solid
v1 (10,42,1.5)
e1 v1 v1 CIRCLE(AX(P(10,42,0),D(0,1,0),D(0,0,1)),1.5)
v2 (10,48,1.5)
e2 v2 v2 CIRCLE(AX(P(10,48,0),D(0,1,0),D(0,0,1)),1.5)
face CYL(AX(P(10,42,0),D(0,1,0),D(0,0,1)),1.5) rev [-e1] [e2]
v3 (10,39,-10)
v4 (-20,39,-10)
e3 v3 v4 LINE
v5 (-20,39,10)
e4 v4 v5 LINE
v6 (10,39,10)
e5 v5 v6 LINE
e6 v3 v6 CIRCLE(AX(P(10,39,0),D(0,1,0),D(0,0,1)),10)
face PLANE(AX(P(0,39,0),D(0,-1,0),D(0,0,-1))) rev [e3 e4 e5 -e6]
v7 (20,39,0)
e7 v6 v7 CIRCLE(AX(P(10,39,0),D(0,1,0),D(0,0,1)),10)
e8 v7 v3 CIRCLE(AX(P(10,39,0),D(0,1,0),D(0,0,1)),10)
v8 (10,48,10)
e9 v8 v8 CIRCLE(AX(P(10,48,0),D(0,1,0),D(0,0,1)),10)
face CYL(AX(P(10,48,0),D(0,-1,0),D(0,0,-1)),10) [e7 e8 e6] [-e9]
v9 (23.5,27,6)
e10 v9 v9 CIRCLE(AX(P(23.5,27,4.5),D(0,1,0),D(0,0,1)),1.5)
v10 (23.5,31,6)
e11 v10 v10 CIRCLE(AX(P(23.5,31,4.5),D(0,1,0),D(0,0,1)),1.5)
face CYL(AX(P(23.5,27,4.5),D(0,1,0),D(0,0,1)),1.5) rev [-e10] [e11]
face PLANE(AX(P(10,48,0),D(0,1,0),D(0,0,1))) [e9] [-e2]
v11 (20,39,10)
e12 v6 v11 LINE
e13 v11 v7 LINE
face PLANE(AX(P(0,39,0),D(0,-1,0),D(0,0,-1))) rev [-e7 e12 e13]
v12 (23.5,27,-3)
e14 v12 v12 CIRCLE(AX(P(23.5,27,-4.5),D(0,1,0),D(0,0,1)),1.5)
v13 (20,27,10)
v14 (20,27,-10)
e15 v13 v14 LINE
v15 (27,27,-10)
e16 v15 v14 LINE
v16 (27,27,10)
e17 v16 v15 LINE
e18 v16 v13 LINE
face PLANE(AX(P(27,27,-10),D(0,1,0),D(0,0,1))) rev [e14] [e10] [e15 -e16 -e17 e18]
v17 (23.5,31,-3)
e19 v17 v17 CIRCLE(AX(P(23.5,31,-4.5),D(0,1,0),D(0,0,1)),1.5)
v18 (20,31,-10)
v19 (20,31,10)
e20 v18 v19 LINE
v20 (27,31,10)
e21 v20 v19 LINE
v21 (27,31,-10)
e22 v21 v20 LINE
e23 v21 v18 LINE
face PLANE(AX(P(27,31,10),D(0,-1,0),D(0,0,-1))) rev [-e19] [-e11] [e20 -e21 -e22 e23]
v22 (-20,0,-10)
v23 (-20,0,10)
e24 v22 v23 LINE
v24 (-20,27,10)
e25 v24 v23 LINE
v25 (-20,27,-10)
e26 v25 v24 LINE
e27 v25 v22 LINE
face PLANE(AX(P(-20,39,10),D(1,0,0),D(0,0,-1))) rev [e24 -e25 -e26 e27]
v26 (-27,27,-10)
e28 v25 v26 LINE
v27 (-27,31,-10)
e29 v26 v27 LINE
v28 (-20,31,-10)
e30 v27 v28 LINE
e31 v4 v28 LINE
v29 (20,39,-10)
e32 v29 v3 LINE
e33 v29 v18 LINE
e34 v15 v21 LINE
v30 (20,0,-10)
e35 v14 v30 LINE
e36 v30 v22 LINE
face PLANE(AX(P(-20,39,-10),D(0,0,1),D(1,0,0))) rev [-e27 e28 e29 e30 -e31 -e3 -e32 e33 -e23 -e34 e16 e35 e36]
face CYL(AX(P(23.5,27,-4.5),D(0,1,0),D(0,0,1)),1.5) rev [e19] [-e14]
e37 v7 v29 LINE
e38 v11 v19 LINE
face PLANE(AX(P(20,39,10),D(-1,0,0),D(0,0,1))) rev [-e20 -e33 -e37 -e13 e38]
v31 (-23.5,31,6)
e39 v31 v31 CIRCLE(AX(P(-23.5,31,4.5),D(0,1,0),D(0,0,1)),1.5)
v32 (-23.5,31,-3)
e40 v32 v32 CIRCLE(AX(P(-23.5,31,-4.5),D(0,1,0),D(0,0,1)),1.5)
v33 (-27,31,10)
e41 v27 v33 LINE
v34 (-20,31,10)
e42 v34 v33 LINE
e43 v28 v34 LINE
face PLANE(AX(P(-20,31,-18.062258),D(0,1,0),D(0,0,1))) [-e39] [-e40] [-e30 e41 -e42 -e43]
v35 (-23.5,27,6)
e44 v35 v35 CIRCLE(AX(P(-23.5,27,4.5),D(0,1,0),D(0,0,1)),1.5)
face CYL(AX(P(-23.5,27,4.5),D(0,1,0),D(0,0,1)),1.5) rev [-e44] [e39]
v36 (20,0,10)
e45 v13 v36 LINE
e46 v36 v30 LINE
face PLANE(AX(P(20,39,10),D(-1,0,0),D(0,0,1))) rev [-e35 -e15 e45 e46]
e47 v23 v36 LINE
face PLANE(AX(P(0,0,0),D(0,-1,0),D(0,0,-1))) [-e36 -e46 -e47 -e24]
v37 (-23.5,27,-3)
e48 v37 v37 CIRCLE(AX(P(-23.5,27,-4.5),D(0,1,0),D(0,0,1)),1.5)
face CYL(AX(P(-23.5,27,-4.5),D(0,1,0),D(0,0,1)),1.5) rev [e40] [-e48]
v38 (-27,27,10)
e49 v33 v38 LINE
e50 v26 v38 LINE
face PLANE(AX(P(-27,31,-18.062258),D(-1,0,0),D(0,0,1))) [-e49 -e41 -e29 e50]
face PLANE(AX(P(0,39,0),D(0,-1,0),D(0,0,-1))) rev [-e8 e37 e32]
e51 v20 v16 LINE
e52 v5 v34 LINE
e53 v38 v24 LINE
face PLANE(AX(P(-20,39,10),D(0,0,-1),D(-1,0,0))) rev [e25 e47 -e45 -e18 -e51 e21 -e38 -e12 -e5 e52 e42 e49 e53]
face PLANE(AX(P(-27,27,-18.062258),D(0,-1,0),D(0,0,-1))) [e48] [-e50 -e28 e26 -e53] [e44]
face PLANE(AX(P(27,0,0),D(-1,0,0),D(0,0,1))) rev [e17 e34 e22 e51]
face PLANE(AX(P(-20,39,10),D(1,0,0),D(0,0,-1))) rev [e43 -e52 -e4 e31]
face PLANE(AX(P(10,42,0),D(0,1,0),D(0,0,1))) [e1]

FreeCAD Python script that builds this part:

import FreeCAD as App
import Part
import Sketcher
Q = App.Units.Quantity

doc = App.newDocument("Part")
body = doc.addObject("PartDesign::Body", "Body")

sketch1 = body.newObject("Sketcher::SketchObject", "Sketch")
sketch1.AttachmentSupport = (doc.getObject("XZ_Plane"), [""])
sketch1.MapMode = "FlatFace"
sketch1.addGeometry([
    Part.LineSegment(App.Vector(-20, -10, 0), App.Vector(-20, 10, 0)),
    Part.LineSegment(App.Vector(-20, 10, 0), App.Vector(20, 10, 0)),
    Part.LineSegment(App.Vector(20, 10, 0), App.Vector(20, -10, 0)),
    Part.LineSegment(App.Vector(20, -10, 0), App.Vector(-20, -10, 0)),
], False)
sketch1.addConstraint([
    Sketcher.Constraint("Coincident", 0, 2, 1, 1),
    Sketcher.Constraint("Coincident", 1, 2, 2, 1),
    Sketcher.Constraint("Coincident", 2, 2, 3, 1),
    Sketcher.Constraint("Coincident", 3, 2, 0, 1),
    Sketcher.Constraint("Vertical", 0),
    Sketcher.Constraint("Horizontal", 1),
    Sketcher.Constraint("Vertical", 2),
    Sketcher.Constraint("Horizontal", 3),
    Sketcher.Constraint("Symmetric", 0, 2, 2, 2, -1, 1),
    Sketcher.Constraint("DistanceX", 1, 1, 1, 2, Q("40 mm")),
    Sketcher.Constraint("DistanceY", 0, 1, 0, 2, Q("20 mm")),
])
pad1 = body.newObject("PartDesign::Pad", "Pad")
pad1.Profile = sketch1
pad1.Length = 39
pad1.Reversed = True

sketch2 = body.newObject("Sketcher::SketchObject", "Sketch001")
sketch2.AttachmentSupport = (doc.getObject("YZ_Plane"), [""])
sketch2.MapMode = "FlatFace"
sketch2.AttachmentOffset = App.Placement(App.Vector(0, 0, 20), App.Rotation())
sketch2.addGeometry([
    Part.LineSegment(App.Vector(31, 10, 0), App.Vector(27, 10, 0)),
    Part.LineSegment(App.Vector(27, 10, 0), App.Vector(27, -10, 0)),
    Part.LineSegment(App.Vector(27, -10, 0), App.Vector(31, -10, 0)),
    Part.LineSegment(App.Vector(31, -10, 0), App.Vector(31, 10, 0)),
], False)
sketch2.addConstraint([
    Sketcher.Constraint("Coincident", 0, 2, 1, 1),
    Sketcher.Constraint("Coincident", 1, 2, 2, 1),
    Sketcher.Constraint("Coincident", 2, 2, 3, 1),
    Sketcher.Constraint("Coincident", 3, 2, 0, 1),
    Sketcher.Constraint("Horizontal", 0),
    Sketcher.Constraint("Vertical", 1),
    Sketcher.Constraint("Horizontal", 2),
    Sketcher.Constraint("Vertical", 3),
    Sketcher.Constraint("DistanceX", 0, 2, 0, 1, Q("4 mm")),
    Sketcher.Constraint("DistanceY", 1, 2, 1, 1, Q("20 mm")),
    Sketcher.Constraint("DistanceX", -1, 1, 0, 2, Q("27 mm")),
    Sketcher.Constraint("DistanceY", -1, 1, 0, 2, Q("10 mm")),
])
pad2 = body.newObject("PartDesign::Pad", "Pad001")
pad2.Profile = sketch2
pad2.Length = 7

sketch3 = body.newObject("Sketcher::SketchObject", "Sketch002")
sketch3.AttachmentSupport = (doc.getObject("XZ_Plane"), [""])
sketch3.MapMode = "FlatFace"
sketch3.AttachmentOffset = App.Placement(App.Vector(0, 0, -31), App.Rotation())
sketch3.addGeometry([
    Part.Circle(App.Vector(23.5, -4.5, 0), App.Vector(0, 0, 1), 1.5),
    Part.Circle(App.Vector(23.5, 4.5, 0), App.Vector(0, 0, 1), 1.5),
], False)
sketch3.addConstraint([
    Sketcher.Constraint("Equal", 0, 1),
    Sketcher.Constraint("Symmetric", 0, 3, 1, 3, -1),
    Sketcher.Constraint("Diameter", 0, Q("3 mm")),
    Sketcher.Constraint("DistanceY", 0, 3, 1, 3, Q("9 mm")),
    Sketcher.Constraint("DistanceX", -1, 1, 0, 3, Q("23.5 mm")),
])
pocket1 = body.newObject("PartDesign::Pocket", "Pocket")
pocket1.Profile = sketch3
pocket1.Length = 4
pocket1.Reversed = True

sketch4 = body.newObject("Sketcher::SketchObject", "Sketch003")
sketch4.AttachmentSupport = (doc.getObject("XY_Plane"), [""])
sketch4.MapMode = "FlatFace"
sketch4.AttachmentOffset = App.Placement(App.Vector(0, 0, 10), App.Rotation())
sketch4.addGeometry([
    Part.LineSegment(App.Vector(-27, 31, 0), App.Vector(-27, 27, 0)),
    Part.LineSegment(App.Vector(-27, 27, 0), App.Vector(-20, 27, 0)),
    Part.LineSegment(App.Vector(-20, 27, 0), App.Vector(-20, 31, 0)),
    Part.LineSegment(App.Vector(-20, 31, 0), App.Vector(-27, 31, 0)),
], False)
sketch4.addConstraint([
    Sketcher.Constraint("Coincident", 0, 2, 1, 1),
    Sketcher.Constraint("Coincident", 1, 2, 2, 1),
    Sketcher.Constraint("Coincident", 2, 2, 3, 1),
    Sketcher.Constraint("Coincident", 3, 2, 0, 1),
    Sketcher.Constraint("Vertical", 0),
    Sketcher.Constraint("Horizontal", 1),
    Sketcher.Constraint("Vertical", 2),
    Sketcher.Constraint("Horizontal", 3),
    Sketcher.Constraint("DistanceX", 1, 1, 1, 2, Q("7 mm")),
    Sketcher.Constraint("DistanceY", 0, 2, 0, 1, Q("4 mm")),
    Sketcher.Constraint("DistanceX", 0, 2, -1, 1, Q("27 mm")),
    Sketcher.Constraint("DistanceY", -1, 1, 0, 2, Q("27 mm")),
])
pad3 = body.newObject("PartDesign::Pad", "Pad002")
pad3.Profile = sketch4
pad3.Length = 20
pad3.Reversed = True

sketch5 = body.newObject("Sketcher::SketchObject", "Sketch004")
sketch5.AttachmentSupport = (doc.getObject("XZ_Plane"), [""])
sketch5.MapMode = "FlatFace"
sketch5.AttachmentOffset = App.Placement(App.Vector(0, 0, -31), App.Rotation())
sketch5.addGeometry([
    Part.Circle(App.Vector(-23.5, 4.5, 0), App.Vector(0, 0, 1), 1.5),
    Part.Circle(App.Vector(-23.5, -4.5, 0), App.Vector(0, 0, 1), 1.5),
], False)
sketch5.addConstraint([
    Sketcher.Constraint("Equal", 0, 1),
    Sketcher.Constraint("Symmetric", 0, 3, 1, 3, -1),
    Sketcher.Constraint("Diameter", 0, Q("3 mm")),
    Sketcher.Constraint("DistanceY", 1, 3, 0, 3, Q("9 mm")),
    Sketcher.Constraint("DistanceX", 0, 3, -1, 1, Q("23.5 mm")),
])
pocket2 = body.newObject("PartDesign::Pocket", "Pocket001")
pocket2.Profile = sketch5
pocket2.Length = 4
pocket2.Reversed = True

sketch6 = body.newObject("Sketcher::SketchObject", "Sketch005")
sketch6.AttachmentSupport = (doc.getObject("XZ_Plane"), [""])
sketch6.MapMode = "FlatFace"
sketch6.AttachmentOffset = App.Placement(App.Vector(0, 0, -39), App.Rotation())
sketch6.addGeometry(Part.Circle(App.Vector(10, 0, 0), App.Vector(0, 0, 1), 10), False)
sketch6.addConstraint([
    Sketcher.Constraint("PointOnObject", 0, 3, -1),
    Sketcher.Constraint("Diameter", 0, Q("20 mm")),
    Sketcher.Constraint("DistanceX", -1, 1, 0, 3, Q("10 mm")),
])
pad4 = body.newObject("PartDesign::Pad", "Pad003")
pad4.Profile = sketch6
pad4.Length = 9
pad4.Reversed = True

sketch7 = body.newObject("Sketcher::SketchObject", "Sketch006")
sketch7.AttachmentSupport = (doc.getObject("XZ_Plane"), [""])
sketch7.MapMode = "FlatFace"
sketch7.AttachmentOffset = App.Placement(App.Vector(0, 0, -48), App.Rotation())
sketch7.addGeometry(Part.Circle(App.Vector(10, 0, 0), App.Vector(0, 0, 1), 1.5), False)
sketch7.addConstraint([
    Sketcher.Constraint("PointOnObject", 0, 3, -1),
    Sketcher.Constraint("Diameter", 0, Q("3 mm")),
    Sketcher.Constraint("DistanceX", -1, 1, 0, 3, Q("10 mm")),
])
pocket3 = body.newObject("PartDesign::Pocket", "Pocket002")
pocket3.Profile = sketch7
pocket3.Length = 6
pocket3.Reversed = True

doc.recompute()
